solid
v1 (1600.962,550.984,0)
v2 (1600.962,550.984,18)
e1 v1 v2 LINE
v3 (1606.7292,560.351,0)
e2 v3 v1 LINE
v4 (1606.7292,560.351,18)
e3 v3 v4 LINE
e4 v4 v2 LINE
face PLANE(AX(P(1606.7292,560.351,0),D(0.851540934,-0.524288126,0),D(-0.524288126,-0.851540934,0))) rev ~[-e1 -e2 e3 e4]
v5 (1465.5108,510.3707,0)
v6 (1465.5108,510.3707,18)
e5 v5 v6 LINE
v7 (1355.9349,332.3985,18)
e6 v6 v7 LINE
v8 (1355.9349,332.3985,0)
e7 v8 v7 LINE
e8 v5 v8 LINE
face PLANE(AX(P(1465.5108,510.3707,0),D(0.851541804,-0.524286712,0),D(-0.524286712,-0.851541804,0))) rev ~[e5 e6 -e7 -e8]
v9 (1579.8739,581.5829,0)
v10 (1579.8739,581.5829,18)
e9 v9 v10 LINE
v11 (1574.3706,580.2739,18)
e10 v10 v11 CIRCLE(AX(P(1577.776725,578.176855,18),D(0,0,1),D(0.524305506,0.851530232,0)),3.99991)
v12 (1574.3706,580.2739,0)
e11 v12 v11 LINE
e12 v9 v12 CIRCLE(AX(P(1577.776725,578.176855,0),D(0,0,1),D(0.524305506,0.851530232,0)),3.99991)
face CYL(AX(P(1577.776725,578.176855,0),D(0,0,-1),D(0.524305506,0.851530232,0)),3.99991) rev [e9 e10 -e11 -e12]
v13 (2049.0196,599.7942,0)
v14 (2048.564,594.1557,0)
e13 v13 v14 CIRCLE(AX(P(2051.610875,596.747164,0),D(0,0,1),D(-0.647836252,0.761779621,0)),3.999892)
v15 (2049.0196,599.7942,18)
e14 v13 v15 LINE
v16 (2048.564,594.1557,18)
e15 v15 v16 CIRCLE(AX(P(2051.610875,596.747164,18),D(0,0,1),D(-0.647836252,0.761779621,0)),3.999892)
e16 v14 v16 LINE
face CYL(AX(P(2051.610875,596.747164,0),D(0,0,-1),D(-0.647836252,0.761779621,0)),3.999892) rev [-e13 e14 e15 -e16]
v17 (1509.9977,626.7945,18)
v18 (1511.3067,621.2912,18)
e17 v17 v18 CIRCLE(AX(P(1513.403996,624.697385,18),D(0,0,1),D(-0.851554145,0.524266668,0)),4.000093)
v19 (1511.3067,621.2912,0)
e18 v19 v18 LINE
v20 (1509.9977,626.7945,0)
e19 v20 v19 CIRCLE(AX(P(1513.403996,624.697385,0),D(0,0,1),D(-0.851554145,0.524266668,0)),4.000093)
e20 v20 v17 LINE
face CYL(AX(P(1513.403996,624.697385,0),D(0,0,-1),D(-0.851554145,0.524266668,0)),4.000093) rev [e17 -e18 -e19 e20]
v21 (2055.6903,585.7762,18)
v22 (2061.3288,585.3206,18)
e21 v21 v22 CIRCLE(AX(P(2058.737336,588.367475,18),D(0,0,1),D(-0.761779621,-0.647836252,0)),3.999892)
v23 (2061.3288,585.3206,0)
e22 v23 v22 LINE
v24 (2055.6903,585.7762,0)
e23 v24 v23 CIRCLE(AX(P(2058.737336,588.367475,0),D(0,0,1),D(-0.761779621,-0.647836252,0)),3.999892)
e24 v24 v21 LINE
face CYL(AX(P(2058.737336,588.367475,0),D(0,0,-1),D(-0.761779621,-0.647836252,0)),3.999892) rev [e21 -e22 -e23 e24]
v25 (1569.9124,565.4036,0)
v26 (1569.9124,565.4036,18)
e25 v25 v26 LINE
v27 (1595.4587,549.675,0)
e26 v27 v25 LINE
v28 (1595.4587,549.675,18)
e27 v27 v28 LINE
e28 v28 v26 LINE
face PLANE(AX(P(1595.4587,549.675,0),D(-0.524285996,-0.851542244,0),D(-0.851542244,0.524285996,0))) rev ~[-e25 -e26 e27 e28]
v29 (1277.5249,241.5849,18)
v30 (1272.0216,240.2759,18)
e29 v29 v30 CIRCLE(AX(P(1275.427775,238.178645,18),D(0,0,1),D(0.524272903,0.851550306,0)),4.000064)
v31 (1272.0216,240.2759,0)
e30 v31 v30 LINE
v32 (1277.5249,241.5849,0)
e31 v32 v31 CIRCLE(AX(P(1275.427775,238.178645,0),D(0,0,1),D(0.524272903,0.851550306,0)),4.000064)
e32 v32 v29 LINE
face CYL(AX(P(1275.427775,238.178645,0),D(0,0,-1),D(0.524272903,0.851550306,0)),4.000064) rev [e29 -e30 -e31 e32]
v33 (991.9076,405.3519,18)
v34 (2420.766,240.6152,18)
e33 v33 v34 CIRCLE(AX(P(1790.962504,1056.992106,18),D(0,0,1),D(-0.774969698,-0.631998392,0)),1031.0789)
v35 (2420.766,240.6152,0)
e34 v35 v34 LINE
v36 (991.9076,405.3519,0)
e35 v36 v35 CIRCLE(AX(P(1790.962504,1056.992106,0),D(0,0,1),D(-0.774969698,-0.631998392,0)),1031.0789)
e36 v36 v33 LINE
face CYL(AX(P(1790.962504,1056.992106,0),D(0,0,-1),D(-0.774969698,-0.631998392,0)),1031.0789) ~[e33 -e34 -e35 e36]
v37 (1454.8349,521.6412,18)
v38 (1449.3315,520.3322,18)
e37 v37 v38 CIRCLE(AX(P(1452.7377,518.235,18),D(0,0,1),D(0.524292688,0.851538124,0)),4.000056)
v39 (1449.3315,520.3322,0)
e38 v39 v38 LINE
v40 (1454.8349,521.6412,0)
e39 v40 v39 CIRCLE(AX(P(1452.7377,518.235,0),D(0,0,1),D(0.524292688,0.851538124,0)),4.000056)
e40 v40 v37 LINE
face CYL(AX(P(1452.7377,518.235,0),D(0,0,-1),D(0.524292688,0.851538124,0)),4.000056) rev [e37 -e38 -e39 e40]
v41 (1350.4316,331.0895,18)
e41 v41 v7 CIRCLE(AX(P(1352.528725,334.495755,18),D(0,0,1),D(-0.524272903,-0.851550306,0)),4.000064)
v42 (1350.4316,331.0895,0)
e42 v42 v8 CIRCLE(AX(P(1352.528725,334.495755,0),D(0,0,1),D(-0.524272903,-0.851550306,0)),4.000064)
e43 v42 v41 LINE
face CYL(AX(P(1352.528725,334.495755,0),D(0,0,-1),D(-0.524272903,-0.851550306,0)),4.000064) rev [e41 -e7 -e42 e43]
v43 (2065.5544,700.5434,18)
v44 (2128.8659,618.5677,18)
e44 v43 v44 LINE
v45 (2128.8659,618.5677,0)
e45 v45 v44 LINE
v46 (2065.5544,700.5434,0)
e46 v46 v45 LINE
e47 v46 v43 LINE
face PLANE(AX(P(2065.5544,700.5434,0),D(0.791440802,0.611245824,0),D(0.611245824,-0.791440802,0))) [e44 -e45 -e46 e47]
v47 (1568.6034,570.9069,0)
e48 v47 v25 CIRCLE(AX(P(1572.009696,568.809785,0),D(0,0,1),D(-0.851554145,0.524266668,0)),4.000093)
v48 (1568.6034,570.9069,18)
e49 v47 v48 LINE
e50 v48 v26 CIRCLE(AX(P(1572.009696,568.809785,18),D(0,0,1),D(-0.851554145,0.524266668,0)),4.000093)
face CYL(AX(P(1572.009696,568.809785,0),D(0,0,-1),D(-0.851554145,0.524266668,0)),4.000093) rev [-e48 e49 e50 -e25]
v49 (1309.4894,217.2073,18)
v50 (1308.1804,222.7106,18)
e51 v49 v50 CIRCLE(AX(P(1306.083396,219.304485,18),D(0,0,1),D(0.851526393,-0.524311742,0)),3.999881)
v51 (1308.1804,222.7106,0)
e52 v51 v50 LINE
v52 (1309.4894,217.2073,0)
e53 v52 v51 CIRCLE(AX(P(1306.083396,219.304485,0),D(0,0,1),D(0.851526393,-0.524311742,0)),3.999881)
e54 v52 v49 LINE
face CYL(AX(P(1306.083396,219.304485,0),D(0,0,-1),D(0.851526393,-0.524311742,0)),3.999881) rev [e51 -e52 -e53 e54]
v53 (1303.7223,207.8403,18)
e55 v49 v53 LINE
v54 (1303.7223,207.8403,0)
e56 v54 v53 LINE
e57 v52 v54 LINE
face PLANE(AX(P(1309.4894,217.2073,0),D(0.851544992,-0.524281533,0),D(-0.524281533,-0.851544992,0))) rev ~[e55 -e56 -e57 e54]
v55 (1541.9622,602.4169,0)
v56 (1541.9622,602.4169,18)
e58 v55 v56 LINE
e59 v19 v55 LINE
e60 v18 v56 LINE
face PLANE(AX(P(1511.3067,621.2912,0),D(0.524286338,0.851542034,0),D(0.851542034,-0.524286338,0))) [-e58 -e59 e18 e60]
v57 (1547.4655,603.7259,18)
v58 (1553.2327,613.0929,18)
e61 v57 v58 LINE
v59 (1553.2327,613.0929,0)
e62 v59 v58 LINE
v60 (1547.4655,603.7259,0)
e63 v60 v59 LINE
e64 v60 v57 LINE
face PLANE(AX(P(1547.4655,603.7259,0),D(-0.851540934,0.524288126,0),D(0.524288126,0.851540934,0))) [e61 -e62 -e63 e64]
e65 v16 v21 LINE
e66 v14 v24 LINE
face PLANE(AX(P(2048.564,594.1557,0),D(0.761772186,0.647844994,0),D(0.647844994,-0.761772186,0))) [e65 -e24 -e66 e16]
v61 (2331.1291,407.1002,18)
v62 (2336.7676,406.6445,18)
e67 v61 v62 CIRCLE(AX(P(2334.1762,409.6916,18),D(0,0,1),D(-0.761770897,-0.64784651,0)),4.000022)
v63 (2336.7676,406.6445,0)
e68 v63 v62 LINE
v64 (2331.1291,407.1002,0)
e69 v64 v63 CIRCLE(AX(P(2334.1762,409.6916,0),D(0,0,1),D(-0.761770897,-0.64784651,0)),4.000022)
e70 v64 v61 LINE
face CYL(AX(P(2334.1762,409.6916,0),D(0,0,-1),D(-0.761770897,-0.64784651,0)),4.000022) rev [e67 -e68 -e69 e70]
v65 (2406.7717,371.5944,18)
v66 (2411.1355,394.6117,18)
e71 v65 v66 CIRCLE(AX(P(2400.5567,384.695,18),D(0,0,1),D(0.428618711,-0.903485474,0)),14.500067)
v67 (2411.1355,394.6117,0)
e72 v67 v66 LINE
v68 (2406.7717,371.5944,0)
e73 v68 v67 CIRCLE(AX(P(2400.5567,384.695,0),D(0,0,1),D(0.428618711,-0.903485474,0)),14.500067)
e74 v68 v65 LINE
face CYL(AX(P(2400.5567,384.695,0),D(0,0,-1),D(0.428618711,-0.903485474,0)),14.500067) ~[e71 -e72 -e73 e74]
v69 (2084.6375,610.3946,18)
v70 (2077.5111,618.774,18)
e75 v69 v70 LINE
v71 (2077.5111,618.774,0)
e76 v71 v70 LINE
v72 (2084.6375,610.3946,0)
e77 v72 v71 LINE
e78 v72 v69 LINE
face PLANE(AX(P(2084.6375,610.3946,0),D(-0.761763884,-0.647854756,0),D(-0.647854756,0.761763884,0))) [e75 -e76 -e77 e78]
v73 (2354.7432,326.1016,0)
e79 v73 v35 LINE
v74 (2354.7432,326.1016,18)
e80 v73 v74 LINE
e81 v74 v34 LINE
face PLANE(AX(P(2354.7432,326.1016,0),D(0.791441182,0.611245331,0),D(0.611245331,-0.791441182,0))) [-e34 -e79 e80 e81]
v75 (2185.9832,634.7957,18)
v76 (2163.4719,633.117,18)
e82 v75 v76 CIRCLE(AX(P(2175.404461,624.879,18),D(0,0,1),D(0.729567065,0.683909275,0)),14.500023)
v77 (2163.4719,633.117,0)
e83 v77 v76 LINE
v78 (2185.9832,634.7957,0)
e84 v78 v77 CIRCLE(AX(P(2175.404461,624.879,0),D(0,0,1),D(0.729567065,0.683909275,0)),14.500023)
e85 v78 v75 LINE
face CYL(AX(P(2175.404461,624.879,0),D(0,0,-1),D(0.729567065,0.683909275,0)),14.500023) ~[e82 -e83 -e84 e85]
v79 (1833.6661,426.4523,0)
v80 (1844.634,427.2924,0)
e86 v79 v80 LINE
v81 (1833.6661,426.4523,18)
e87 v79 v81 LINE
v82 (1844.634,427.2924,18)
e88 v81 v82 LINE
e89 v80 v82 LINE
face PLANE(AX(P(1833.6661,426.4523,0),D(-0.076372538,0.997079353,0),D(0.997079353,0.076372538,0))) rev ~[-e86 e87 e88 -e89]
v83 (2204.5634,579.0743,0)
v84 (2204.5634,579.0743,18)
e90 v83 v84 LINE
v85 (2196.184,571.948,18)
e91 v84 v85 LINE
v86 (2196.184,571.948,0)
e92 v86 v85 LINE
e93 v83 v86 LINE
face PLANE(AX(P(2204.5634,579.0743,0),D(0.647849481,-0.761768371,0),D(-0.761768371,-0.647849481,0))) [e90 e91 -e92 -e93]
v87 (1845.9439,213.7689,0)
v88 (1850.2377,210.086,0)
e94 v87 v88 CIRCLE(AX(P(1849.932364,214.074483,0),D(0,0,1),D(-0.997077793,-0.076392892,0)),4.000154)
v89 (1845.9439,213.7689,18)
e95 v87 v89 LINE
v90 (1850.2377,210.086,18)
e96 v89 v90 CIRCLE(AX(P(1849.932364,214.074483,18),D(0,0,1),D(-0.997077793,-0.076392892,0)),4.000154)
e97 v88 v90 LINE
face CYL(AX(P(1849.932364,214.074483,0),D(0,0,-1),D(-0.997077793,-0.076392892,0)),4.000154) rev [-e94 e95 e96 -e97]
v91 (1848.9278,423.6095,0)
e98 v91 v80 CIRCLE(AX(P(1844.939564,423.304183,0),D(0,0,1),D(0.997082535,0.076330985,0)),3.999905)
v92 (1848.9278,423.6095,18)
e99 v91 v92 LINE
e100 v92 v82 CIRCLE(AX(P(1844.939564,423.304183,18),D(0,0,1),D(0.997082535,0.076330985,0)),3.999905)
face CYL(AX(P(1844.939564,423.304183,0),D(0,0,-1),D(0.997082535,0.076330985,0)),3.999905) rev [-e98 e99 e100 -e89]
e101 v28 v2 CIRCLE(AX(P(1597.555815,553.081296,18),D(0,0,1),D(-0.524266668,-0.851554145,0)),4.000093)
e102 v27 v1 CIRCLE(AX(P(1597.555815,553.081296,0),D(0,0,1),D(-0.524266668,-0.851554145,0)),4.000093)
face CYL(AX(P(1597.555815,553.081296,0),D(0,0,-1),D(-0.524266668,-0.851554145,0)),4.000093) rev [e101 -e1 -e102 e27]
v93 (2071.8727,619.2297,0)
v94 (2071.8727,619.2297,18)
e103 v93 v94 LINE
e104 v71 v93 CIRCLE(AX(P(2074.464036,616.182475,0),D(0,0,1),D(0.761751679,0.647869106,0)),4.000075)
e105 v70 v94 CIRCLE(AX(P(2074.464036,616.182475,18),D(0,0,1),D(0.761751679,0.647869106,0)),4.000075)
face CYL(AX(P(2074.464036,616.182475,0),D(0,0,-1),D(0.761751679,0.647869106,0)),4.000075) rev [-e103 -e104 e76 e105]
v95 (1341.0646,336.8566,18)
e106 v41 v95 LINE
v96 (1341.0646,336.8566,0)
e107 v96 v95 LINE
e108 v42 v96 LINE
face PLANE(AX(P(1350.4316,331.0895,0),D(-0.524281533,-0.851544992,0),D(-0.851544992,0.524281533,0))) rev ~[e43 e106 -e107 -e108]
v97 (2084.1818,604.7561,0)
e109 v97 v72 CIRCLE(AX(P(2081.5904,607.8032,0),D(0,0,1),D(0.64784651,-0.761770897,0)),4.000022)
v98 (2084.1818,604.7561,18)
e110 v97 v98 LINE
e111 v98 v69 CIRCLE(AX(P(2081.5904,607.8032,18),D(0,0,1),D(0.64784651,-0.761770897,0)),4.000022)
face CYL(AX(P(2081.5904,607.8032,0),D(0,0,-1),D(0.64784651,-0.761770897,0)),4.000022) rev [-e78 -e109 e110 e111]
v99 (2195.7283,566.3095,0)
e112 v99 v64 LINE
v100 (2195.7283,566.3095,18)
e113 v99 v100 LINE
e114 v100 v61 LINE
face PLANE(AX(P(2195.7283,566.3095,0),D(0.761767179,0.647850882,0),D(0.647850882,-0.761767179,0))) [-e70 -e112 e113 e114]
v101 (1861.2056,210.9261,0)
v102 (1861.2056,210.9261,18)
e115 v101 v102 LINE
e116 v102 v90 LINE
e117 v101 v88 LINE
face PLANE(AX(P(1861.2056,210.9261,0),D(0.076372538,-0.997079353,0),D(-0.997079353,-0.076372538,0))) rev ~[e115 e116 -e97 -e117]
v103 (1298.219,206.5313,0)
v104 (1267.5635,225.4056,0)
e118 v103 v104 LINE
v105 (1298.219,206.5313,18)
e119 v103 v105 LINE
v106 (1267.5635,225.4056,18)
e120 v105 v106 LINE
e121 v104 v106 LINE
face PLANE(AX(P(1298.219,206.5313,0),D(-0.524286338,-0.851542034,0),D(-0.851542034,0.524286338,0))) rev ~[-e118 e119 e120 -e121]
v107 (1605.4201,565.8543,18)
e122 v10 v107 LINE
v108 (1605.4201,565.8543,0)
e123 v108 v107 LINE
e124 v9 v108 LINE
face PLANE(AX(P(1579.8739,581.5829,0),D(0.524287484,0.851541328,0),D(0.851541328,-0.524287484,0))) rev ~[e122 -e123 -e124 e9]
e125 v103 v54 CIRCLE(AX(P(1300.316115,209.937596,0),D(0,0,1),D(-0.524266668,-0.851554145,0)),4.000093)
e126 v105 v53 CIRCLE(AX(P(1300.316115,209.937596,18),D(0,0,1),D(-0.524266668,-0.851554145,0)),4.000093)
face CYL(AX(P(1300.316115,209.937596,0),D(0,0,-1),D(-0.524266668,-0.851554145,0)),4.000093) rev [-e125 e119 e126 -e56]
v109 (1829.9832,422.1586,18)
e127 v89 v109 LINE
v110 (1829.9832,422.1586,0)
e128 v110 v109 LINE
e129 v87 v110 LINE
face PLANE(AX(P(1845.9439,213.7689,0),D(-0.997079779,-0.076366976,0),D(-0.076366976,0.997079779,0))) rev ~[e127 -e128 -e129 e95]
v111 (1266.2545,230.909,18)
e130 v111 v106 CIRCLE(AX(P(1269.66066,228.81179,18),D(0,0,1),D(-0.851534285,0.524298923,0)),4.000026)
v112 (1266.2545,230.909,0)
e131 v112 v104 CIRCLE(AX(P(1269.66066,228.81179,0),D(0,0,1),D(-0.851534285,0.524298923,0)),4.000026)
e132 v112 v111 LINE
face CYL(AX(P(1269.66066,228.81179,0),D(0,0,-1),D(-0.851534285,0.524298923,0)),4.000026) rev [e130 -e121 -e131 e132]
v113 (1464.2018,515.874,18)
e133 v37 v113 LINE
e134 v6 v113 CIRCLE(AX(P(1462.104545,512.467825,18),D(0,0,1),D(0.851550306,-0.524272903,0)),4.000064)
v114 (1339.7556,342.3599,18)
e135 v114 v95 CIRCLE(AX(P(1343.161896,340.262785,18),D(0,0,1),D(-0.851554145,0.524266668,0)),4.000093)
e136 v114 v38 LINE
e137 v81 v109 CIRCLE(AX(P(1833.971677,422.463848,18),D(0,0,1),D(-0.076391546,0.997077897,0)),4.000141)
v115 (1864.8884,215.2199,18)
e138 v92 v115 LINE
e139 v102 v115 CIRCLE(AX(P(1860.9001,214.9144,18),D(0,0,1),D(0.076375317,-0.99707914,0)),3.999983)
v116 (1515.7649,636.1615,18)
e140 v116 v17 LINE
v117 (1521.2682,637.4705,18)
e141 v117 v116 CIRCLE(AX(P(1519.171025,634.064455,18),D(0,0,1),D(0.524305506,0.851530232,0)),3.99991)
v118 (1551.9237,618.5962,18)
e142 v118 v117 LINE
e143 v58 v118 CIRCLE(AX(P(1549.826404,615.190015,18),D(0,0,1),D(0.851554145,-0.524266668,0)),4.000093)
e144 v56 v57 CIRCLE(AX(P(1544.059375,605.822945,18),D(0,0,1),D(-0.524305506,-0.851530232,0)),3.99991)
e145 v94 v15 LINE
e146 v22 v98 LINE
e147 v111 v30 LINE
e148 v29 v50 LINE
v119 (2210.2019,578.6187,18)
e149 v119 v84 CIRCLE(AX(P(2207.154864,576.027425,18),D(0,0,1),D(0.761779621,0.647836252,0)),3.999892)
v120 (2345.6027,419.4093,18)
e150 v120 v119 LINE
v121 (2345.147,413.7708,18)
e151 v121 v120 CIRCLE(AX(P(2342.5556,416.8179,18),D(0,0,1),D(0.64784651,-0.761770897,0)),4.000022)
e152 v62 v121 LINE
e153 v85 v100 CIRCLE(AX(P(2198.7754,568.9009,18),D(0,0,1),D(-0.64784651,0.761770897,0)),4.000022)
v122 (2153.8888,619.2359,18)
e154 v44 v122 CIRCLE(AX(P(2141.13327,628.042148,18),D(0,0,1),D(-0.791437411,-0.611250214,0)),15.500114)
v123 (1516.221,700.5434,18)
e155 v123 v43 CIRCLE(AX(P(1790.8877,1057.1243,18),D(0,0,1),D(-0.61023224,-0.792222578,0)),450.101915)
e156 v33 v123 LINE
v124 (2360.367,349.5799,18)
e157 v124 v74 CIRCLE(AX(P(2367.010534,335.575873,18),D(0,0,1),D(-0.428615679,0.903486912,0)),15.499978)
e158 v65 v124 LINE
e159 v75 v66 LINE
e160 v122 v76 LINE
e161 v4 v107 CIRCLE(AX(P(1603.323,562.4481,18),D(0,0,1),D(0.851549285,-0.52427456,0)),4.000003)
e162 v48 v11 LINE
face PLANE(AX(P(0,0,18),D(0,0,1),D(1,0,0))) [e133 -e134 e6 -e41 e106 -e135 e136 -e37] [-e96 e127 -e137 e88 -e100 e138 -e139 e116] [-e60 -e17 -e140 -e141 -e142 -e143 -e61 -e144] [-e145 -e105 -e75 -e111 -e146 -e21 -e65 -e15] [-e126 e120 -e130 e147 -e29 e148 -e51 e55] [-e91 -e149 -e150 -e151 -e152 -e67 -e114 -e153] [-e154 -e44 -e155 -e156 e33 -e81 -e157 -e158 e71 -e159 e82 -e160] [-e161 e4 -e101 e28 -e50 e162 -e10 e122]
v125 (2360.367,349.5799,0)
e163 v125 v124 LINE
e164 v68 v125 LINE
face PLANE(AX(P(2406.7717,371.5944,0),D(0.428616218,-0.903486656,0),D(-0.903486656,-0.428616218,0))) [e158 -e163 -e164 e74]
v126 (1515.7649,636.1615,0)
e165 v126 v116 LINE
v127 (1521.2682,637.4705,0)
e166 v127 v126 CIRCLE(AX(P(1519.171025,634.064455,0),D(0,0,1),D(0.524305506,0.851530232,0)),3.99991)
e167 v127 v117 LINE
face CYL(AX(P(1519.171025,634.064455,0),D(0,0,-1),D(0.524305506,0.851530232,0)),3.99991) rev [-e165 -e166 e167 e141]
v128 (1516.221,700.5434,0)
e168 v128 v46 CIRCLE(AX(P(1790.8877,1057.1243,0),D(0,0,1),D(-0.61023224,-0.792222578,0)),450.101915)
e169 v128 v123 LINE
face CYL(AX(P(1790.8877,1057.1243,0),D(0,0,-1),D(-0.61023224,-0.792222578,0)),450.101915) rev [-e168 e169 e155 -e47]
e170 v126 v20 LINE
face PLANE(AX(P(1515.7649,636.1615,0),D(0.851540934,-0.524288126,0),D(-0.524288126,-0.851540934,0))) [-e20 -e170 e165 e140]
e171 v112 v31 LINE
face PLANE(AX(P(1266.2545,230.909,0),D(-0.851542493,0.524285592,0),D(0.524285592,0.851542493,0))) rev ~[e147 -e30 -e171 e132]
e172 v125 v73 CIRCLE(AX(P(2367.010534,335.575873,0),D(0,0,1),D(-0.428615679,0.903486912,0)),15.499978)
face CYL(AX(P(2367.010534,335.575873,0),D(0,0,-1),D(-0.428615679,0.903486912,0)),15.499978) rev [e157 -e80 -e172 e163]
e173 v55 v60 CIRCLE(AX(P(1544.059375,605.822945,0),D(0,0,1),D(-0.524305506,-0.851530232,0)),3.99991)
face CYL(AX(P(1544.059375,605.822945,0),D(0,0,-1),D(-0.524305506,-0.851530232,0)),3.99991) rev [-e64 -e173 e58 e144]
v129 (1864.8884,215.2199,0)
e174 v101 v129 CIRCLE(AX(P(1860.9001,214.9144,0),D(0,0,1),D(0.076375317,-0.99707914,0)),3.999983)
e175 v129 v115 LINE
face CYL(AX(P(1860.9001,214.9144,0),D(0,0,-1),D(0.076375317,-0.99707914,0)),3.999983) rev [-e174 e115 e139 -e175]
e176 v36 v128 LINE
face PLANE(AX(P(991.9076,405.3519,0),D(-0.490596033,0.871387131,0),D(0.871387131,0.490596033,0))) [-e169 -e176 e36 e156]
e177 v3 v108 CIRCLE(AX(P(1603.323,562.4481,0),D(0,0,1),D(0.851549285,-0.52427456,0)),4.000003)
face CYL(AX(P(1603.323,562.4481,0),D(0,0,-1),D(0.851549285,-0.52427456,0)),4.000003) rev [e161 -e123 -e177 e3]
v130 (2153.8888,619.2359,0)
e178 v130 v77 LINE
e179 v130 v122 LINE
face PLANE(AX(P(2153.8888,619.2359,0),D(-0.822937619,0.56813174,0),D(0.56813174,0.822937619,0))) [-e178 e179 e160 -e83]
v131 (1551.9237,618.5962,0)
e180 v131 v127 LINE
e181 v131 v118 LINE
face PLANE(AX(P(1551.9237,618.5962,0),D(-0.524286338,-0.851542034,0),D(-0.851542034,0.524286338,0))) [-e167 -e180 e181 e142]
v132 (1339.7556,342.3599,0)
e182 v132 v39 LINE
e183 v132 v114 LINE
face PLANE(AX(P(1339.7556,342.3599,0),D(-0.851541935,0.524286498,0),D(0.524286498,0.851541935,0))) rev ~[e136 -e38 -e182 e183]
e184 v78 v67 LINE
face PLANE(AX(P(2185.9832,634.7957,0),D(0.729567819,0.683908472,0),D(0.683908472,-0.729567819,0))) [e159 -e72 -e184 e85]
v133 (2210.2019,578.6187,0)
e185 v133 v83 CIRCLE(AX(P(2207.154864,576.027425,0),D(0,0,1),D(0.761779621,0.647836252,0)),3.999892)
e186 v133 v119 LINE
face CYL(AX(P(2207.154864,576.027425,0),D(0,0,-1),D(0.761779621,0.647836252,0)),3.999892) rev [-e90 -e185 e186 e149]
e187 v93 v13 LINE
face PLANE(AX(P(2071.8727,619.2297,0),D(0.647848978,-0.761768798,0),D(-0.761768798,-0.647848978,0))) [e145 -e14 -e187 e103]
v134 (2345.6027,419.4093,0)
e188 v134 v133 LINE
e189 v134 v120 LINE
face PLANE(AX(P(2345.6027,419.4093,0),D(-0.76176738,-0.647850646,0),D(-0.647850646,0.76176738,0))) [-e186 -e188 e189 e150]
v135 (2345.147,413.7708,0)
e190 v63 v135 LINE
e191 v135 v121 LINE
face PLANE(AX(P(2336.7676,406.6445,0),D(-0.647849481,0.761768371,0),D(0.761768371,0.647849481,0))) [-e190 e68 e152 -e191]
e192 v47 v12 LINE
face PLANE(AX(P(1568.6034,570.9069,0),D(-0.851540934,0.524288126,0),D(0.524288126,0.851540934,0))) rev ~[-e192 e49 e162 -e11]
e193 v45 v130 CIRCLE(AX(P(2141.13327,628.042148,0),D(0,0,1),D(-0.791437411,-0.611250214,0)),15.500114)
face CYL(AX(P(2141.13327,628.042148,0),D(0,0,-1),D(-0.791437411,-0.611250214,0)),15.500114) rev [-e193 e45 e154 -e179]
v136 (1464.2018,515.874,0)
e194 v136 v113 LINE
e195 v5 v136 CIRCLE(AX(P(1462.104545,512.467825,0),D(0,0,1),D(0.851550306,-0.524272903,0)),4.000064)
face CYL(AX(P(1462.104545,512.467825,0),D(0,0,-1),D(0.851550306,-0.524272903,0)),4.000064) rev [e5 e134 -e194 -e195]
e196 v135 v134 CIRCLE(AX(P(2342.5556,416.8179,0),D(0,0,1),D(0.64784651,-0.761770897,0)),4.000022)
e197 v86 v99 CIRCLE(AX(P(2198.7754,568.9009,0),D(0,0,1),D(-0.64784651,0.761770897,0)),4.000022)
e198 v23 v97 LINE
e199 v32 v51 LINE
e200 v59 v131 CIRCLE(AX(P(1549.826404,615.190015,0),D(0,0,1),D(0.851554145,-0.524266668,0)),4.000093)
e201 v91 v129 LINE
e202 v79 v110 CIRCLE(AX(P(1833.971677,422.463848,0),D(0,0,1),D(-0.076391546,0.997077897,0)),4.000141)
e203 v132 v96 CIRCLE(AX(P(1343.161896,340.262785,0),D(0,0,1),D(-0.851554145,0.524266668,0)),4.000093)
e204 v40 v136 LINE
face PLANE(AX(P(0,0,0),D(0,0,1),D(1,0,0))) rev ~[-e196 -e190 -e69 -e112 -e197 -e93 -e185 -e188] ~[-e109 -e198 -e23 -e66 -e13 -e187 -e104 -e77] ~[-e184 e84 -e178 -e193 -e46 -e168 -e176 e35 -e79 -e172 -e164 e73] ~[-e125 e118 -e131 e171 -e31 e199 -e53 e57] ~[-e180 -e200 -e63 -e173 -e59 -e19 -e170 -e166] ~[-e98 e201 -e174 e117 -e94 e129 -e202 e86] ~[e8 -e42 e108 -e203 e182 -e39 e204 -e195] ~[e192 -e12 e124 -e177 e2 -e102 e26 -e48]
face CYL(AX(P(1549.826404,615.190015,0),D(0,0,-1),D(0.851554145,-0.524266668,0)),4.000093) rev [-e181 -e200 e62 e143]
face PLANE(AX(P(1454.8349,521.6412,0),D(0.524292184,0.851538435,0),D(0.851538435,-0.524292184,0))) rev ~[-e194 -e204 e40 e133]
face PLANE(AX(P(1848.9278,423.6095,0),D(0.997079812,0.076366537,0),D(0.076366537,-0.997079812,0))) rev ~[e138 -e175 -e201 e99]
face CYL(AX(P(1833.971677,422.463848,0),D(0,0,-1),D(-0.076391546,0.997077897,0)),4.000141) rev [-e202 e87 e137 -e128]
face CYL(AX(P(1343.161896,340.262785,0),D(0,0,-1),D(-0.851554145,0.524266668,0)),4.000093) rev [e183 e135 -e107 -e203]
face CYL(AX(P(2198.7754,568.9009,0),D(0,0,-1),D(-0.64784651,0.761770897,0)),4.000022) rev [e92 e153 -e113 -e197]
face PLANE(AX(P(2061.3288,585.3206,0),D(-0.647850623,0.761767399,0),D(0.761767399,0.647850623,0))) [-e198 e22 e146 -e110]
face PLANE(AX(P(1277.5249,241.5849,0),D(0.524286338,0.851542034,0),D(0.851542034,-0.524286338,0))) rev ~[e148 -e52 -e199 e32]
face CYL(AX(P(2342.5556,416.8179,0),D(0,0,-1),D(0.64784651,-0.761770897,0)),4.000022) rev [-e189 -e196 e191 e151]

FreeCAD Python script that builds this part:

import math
import FreeCAD as App
import Part
import Sketcher

V = App.Vector
Q = App.Units.Quantity

doc = App.newDocument("Part")
body = doc.addObject("PartDesign::Body", "Body")

sketch1 = doc.addObject("Sketcher::SketchObject", "Sketch")
body.addObject(sketch1)
sketch1.AttachmentSupport = (doc.XY_Plane, [""])
sketch1.MapMode = "FlatFace"
sketch1.addGeometry([
    Part.LineSegment(V(2163, 633, 0), V(2154, 619, 0)),
    Part.ArcOfCircle(Part.Circle(V(2141, 628, 0), V(0, 0, 1), 15), math.radians(-142), math.radians(-35)),
    Part.LineSegment(V(2129, 619, 0), V(2066, 701, 0)),
    Part.ArcOfCircle(Part.Circle(V(1791, 1057, 0), V(0, 0, 1), 450), math.radians(-128), math.radians(-52)),
    Part.LineSegment(V(1516, 701, 0), V(992, 405, 0)),
    Part.ArcOfCircle(Part.Circle(V(1791, 1057, 0), V(0, 0, 1), 1031), math.radians(-141), math.radians(-52)),
    Part.LineSegment(V(2421, 241, 0), V(2355, 326, 0)),
    Part.ArcOfCircle(Part.Circle(V(2367, 336, 0), V(0, 0, 1), 15), math.radians(115), math.radians(218)),
    Part.LineSegment(V(2360, 350, 0), V(2407, 372, 0)),
    Part.ArcOfCircle(Part.Circle(V(2401, 385, 0), V(0, 0, 1), 15), math.radians(-65), math.radians(43)),
    Part.LineSegment(V(2411, 395, 0), V(2186, 635, 0)),
    Part.ArcOfCircle(Part.Circle(V(2175, 625, 0), V(0, 0, 1), 14), math.radians(43), math.radians(145)),
], False)
sketch1.addConstraint([
    Sketcher.Constraint("Tangent", 0, 2, 1, 2),
    Sketcher.Constraint("Tangent", 1, 1, 2, 1),
    Sketcher.Constraint("Coincident", 2, 2, 3, 2),
    Sketcher.Constraint("Coincident", 3, 1, 4, 1),
    Sketcher.Constraint("Coincident", 4, 2, 5, 1),
    Sketcher.Constraint("Coincident", 5, 2, 6, 1),
    Sketcher.Constraint("Tangent", 6, 2, 7, 2),
    Sketcher.Constraint("Tangent", 7, 1, 8, 1),
    Sketcher.Constraint("Tangent", 8, 2, 9, 1),
    Sketcher.Constraint("Tangent", 9, 2, 10, 1),
    Sketcher.Constraint("Tangent", 10, 2, 11, 1),
    Sketcher.Constraint("Tangent", 11, 2, 0, 1),
    Sketcher.Constraint("Equal", 1, 7),
    Sketcher.Constraint("Equal", 9, 11),
    Sketcher.Constraint("Parallel", 2, 6),
    Sketcher.Constraint("Horizontal", 2, 2, 3, 1),
    Sketcher.Constraint("Radius", 1, Q("15.5 mm")),
    Sketcher.Constraint("Radius", 9, Q("14.5 mm")),
    Sketcher.Constraint("Radius", 3, Q("450.102 mm")),
    Sketcher.Constraint("Radius", 5, Q("1031.079 mm")),
    Sketcher.Constraint("Angle", 0, Q("-124.62 deg")),
    Sketcher.Constraint("Angle", 2, Q("127.6796 deg")),
    Sketcher.Constraint("Angle", 4, Q("-150.6202 deg")),
    Sketcher.Constraint("Angle", 8, Q("25.3798 deg")),
    Sketcher.Constraint("Angle", 10, Q("133.1498 deg")),
    Sketcher.Constraint("DistanceY", -1, 1, 7, 1, Q("349.58 mm")),
    Sketcher.Constraint("DistanceY", 1, 3, 5, 3, Q("428.95 mm")),
    Sketcher.Constraint("DistanceY", 7, 3, 0, 2, Q("283.66 mm")),
    Sketcher.Constraint("DistanceX", 2, 2, 11, 3, Q("109.85 mm")),
    Sketcher.Constraint("DistanceX", 4, 2, 3, 3, Q("798.98 mm")),
    Sketcher.Constraint("DistanceY", 6, 2, 9, 2, Q("68.51 mm")),
    Sketcher.Constraint("DistanceX", 1, 3, 10, 2, Q("44.85 mm")),
    Sketcher.Constraint("DistanceX", -1, 1, 1, 1, Q("2128.866 mm")),
    Sketcher.Constraint("DistanceX", -1, 1, 3, 1, Q("1516.221 mm")),
])
pad1 = doc.addObject("PartDesign::Pad", "Pad")
body.addObject(pad1)
pad1.Profile = sketch1
pad1.Length = 18

sketch2 = doc.addObject("Sketcher::SketchObject", "Sketch001")
body.addObject(sketch2)
sketch2.AttachmentSupport = (doc.XY_Plane, [""])
sketch2.MapMode = "FlatFace"
sketch2.addGeometry([
    Part.LineSegment(V(1844.6, 427.3, 0), V(1833.7, 426.5, 0)),
    Part.ArcOfCircle(Part.Circle(V(1834, 422.5, 0), V(0, 0, 1), 4), math.radians(94), math.radians(184)),
    Part.LineSegment(V(1830, 422.2, 0), V(1845.9, 213.8, 0)),
    Part.ArcOfCircle(Part.Circle(V(1849.9, 214.1, 0), V(0, 0, 1), 4), math.radians(-176), math.radians(-86)),
    Part.LineSegment(V(1850.2, 210.1, 0), V(1861.2, 210.9, 0)),
    Part.ArcOfCircle(Part.Circle(V(1860.9, 214.9, 0), V(0, 0, 1), 4), math.radians(-86), math.radians(4)),
    Part.LineSegment(V(1864.9, 215.2, 0), V(1848.9, 423.6, 0)),
    Part.ArcOfCircle(Part.Circle(V(1844.9, 423.3, 0), V(0, 0, 1), 4), math.radians(4), math.radians(94)),
    Part.LineSegment(V(2084.6, 610.4, 0), V(2077.5, 618.8, 0)),
    Part.ArcOfCircle(Part.Circle(V(2074.5, 616.2, 0), V(0, 0, 1), 4), math.radians(40), math.radians(130)),
    Part.LineSegment(V(2071.9, 619.2, 0), V(2049, 599.8, 0)),
    Part.ArcOfCircle(Part.Circle(V(2051.6, 596.7, 0), V(0, 0, 1), 4), math.radians(130), math.radians(220)),
    Part.LineSegment(V(2048.6, 594.2, 0), V(2055.7, 585.8, 0)),
    Part.ArcOfCircle(Part.Circle(V(2058.7, 588.4, 0), V(0, 0, 1), 4), math.radians(-140), math.radians(-50)),
    Part.LineSegment(V(2061.3, 585.3, 0), V(2084.2, 604.8, 0)),
    Part.ArcOfCircle(Part.Circle(V(2081.6, 607.8, 0), V(0, 0, 1), 4), math.radians(-50), math.radians(40)),
    Part.LineSegment(V(1547.5, 603.7, 0), V(1553.2, 613.1, 0)),
    Part.ArcOfCircle(Part.Circle(V(1549.8, 615.2, 0), V(0, 0, 1), 4), math.radians(-32), math.radians(58)),
    Part.LineSegment(V(1551.9, 618.6, 0), V(1521.3, 637.5, 0)),
    Part.ArcOfCircle(Part.Circle(V(1519.2, 634.1, 0), V(0, 0, 1), 4), math.radians(58), math.radians(148)),
    Part.LineSegment(V(1515.8, 636.2, 0), V(1510, 626.8, 0)),
    Part.ArcOfCircle(Part.Circle(V(1513.4, 624.7, 0), V(0, 0, 1), 4), math.radians(148), math.radians(238)),
    Part.LineSegment(V(1511.3, 621.3, 0), V(1542, 602.4, 0)),
    Part.ArcOfCircle(Part.Circle(V(1544.1, 605.8, 0), V(0, 0, 1), 4), math.radians(-122), math.radians(-32)),
    Part.LineSegment(V(1272, 240.3, 0), V(1266.3, 230.9, 0)),
    Part.ArcOfCircle(Part.Circle(V(1269.7, 228.8, 0), V(0, 0, 1), 4), math.radians(148), math.radians(238)),
    Part.LineSegment(V(1267.6, 225.4, 0), V(1298.2, 206.5, 0)),
    Part.ArcOfCircle(Part.Circle(V(1300.3, 209.9, 0), V(0, 0, 1), 4), math.radians(-122), math.radians(-32)),
    Part.LineSegment(V(1303.7, 207.8, 0), V(1309.5, 217.2, 0)),
    Part.ArcOfCircle(Part.Circle(V(1306.1, 219.3, 0), V(0, 0, 1), 4), math.radians(-32), math.radians(58)),
    Part.LineSegment(V(1308.2, 222.7, 0), V(1277.5, 241.6, 0)),
    Part.ArcOfCircle(Part.Circle(V(1275.4, 238.2, 0), V(0, 0, 1), 4), math.radians(58), math.radians(148)),
    Part.LineSegment(V(2204.6, 579.1, 0), V(2196.2, 571.9, 0)),
    Part.ArcOfCircle(Part.Circle(V(2198.8, 568.9, 0), V(0, 0, 1), 4), math.radians(130), math.radians(220)),
    Part.LineSegment(V(2195.7, 566.3, 0), V(2331.1, 407.1, 0)),
    Part.ArcOfCircle(Part.Circle(V(2334.2, 409.7, 0), V(0, 0, 1), 4), math.radians(-140), math.radians(-50)),
    Part.LineSegment(V(2336.8, 406.6, 0), V(2345.1, 413.8, 0)),
    Part.ArcOfCircle(Part.Circle(V(2342.6, 416.8, 0), V(0, 0, 1), 4), math.radians(-50), math.radians(40)),
    Part.LineSegment(V(2345.6, 419.4, 0), V(2210.2, 578.6, 0)),
    Part.ArcOfCircle(Part.Circle(V(2207.2, 576, 0), V(0, 0, 1), 4), math.radians(40), math.radians(130)),
    Part.LineSegment(V(1449.3, 520.3, 0), V(1339.8, 342.4, 0)),
    Part.ArcOfCircle(Part.Circle(V(1343.2, 340.3, 0), V(0, 0, 1), 4), math.radians(148), math.radians(238)),
    Part.LineSegment(V(1341.1, 336.9, 0), V(1350.4, 331.1, 0)),
    Part.ArcOfCircle(Part.Circle(V(1352.5, 334.5, 0), V(0, 0, 1), 4), math.radians(-122), math.radians(-32)),
    Part.LineSegment(V(1355.9, 332.4, 0), V(1465.5, 510.4, 0)),
    Part.ArcOfCircle(Part.Circle(V(1462.1, 512.5, 0), V(0, 0, 1), 4), math.radians(-32), math.radians(58)),
    Part.LineSegment(V(1464.2, 515.9, 0), V(1454.8, 521.6, 0)),
    Part.ArcOfCircle(Part.Circle(V(1452.7, 518.2, 0), V(0, 0, 1), 4), math.radians(58), math.radians(148)),
    Part.LineSegment(V(1601, 551, 0), V(1606.7, 560.4, 0)),
    Part.ArcOfCircle(Part.Circle(V(1603.3, 562.4, 0), V(0, 0, 1), 4), math.radians(-32), math.radians(58)),
    Part.LineSegment(V(1605.4, 565.9, 0), V(1579.9, 581.6, 0)),
    Part.ArcOfCircle(Part.Circle(V(1577.8, 578.2, 0), V(0, 0, 1), 4), math.radians(58), math.radians(148)),
    Part.LineSegment(V(1574.4, 580.3, 0), V(1568.6, 570.9, 0)),
    Part.ArcOfCircle(Part.Circle(V(1572, 568.8, 0), V(0, 0, 1), 4), math.radians(148), math.radians(238)),
    Part.LineSegment(V(1569.9, 565.4, 0), V(1595.5, 549.7, 0)),
    Part.ArcOfCircle(Part.Circle(V(1597.6, 553.1, 0), V(0, 0, 1), 4), math.radians(-122), math.radians(-32)),
], False)
sketch2.addConstraint([
    Sketcher.Constraint("Tangent", 0, 2, 1, 1),
    Sketcher.Constraint("Tangent", 1, 2, 2, 1),
    Sketcher.Constraint("Tangent", 2, 2, 3, 1),
    Sketcher.Constraint("Tangent", 3, 2, 4, 1),
    Sketcher.Constraint("Tangent", 4, 2, 5, 1),
    Sketcher.Constraint("Tangent", 5, 2, 6, 1),
    Sketcher.Constraint("Tangent", 6, 2, 7, 1),
    Sketcher.Constraint("Tangent", 7, 2, 0, 1),
    Sketcher.Constraint("Tangent", 8, 2, 9, 1),
    Sketcher.Constraint("Tangent", 9, 2, 10, 1),
    Sketcher.Constraint("Tangent", 10, 2, 11, 1),
    Sketcher.Constraint("Tangent", 11, 2, 12, 1),
    Sketcher.Constraint("Tangent", 12, 2, 13, 1),
    Sketcher.Constraint("Tangent", 13, 2, 14, 1),
    Sketcher.Constraint("Tangent", 14, 2, 15, 1),
    Sketcher.Constraint("Tangent", 15, 2, 8, 1),
    Sketcher.Constraint("Tangent", 16, 2, 17, 1),
    Sketcher.Constraint("Tangent", 17, 2, 18, 1),
    Sketcher.Constraint("Tangent", 18, 2, 19, 1),
    Sketcher.Constraint("Tangent", 19, 2, 20, 1),
    Sketcher.Constraint("Tangent", 20, 2, 21, 1),
    Sketcher.Constraint("Tangent", 21, 2, 22, 1),
    Sketcher.Constraint("Tangent", 22, 2, 23, 1),
    Sketcher.Constraint("Tangent", 23, 2, 16, 1),
    Sketcher.Constraint("Tangent", 24, 2, 25, 1),
    Sketcher.Constraint("Tangent", 25, 2, 26, 1),
    Sketcher.Constraint("Tangent", 26, 2, 27, 1),
    Sketcher.Constraint("Tangent", 27, 2, 28, 1),
    Sketcher.Constraint("Tangent", 28, 2, 29, 1),
    Sketcher.Constraint("Tangent", 29, 2, 30, 1),
    Sketcher.Constraint("Tangent", 30, 2, 31, 1),
    Sketcher.Constraint("Tangent", 31, 2, 24, 1),
    Sketcher.Constraint("Tangent", 32, 2, 33, 1),
    Sketcher.Constraint("Tangent", 33, 2, 34, 1),
    Sketcher.Constraint("Tangent", 34, 2, 35, 1),
    Sketcher.Constraint("Tangent", 35, 2, 36, 1),
    Sketcher.Constraint("Tangent", 36, 2, 37, 1),
    Sketcher.Constraint("Tangent", 37, 2, 38, 1),
    Sketcher.Constraint("Tangent", 38, 2, 39, 1),
    Sketcher.Constraint("Tangent", 39, 2, 32, 1),
    Sketcher.Constraint("Tangent", 40, 2, 41, 1),
    Sketcher.Constraint("Tangent", 41, 2, 42, 1),
    Sketcher.Constraint("Tangent", 42, 2, 43, 1),
    Sketcher.Constraint("Tangent", 43, 2, 44, 1),
    Sketcher.Constraint("Tangent", 44, 2, 45, 1),
    Sketcher.Constraint("Tangent", 45, 2, 46, 1),
    Sketcher.Constraint("Tangent", 46, 2, 47, 1),
    Sketcher.Constraint("Tangent", 47, 2, 40, 1),
    Sketcher.Constraint("Tangent", 48, 2, 49, 1),
    Sketcher.Constraint("Tangent", 49, 2, 50, 1),
    Sketcher.Constraint("Tangent", 50, 2, 51, 1),
    Sketcher.Constraint("Tangent", 51, 2, 52, 1),
    Sketcher.Constraint("Tangent", 52, 2, 53, 1),
    Sketcher.Constraint("Tangent", 53, 2, 54, 1),
    Sketcher.Constraint("Tangent", 54, 2, 55, 1),
    Sketcher.Constraint("Tangent", 55, 2, 48, 1),
    Sketcher.Constraint("Equal", 1, 3),
    Sketcher.Constraint("Equal", 3, 5),
    Sketcher.Constraint("Equal", 5, 7),
    Sketcher.Constraint("Equal", 7, 9),
    Sketcher.Constraint("Equal", 9, 11),
    Sketcher.Constraint("Equal", 11, 13),
    Sketcher.Constraint("Equal", 13, 15),
    Sketcher.Constraint("Equal", 15, 17),
    Sketcher.Constraint("Equal", 17, 19),
    Sketcher.Constraint("Equal", 19, 21),
    Sketcher.Constraint("Equal", 21, 23),
    Sketcher.Constraint("Equal", 23, 25),
    Sketcher.Constraint("Equal", 25, 27),
    Sketcher.Constraint("Equal", 27, 29),
    Sketcher.Constraint("Equal", 29, 31),
    Sketcher.Constraint("Equal", 31, 33),
    Sketcher.Constraint("Equal", 33, 35),
    Sketcher.Constraint("Equal", 35, 37),
    Sketcher.Constraint("Equal", 37, 39),
    Sketcher.Constraint("Equal", 39, 41),
    Sketcher.Constraint("Equal", 41, 43),
    Sketcher.Constraint("Equal", 43, 45),
    Sketcher.Constraint("Equal", 45, 47),
    Sketcher.Constraint("Equal", 47, 49),
    Sketcher.Constraint("Equal", 49, 51),
    Sketcher.Constraint("Equal", 51, 53),
    Sketcher.Constraint("Equal", 53, 55),
    Sketcher.Constraint("Perpendicular", 0, 2),
    Sketcher.Constraint("Perpendicular", 2, 4),
    Sketcher.Constraint("Perpendicular", 4, 6),
    Sketcher.Constraint("Perpendicular", 8, 10),
    Sketcher.Constraint("Perpendicular", 10, 12),
    Sketcher.Constraint("Perpendicular", 12, 14),
    Sketcher.Constraint("Perpendicular", 16, 18),
    Sketcher.Constraint("Perpendicular", 18, 20),
    Sketcher.Constraint("Perpendicular", 20, 22),
    Sketcher.Constraint("Perpendicular", 22, 24),
    Sketcher.Constraint("Perpendicular", 24, 26),
    Sketcher.Constraint("Perpendicular", 26, 28),
    Sketcher.Constraint("Perpendicular", 28, 30),
    Sketcher.Constraint("Parallel", 14, 32),
    Sketcher.Constraint("Perpendicular", 32, 34),
    Sketcher.Constraint("Perpendicular", 34, 36),
    Sketcher.Constraint("Perpendicular", 36, 38),
    Sketcher.Constraint("Perpendicular", 30, 40),
    Sketcher.Constraint("Perpendicular", 40, 42),
    Sketcher.Constraint("Perpendicular", 42, 44),
    Sketcher.Constraint("Perpendicular", 44, 46),
    Sketcher.Constraint("Perpendicular", 46, 48),
    Sketcher.Constraint("Perpendicular", 48, 50),
    Sketcher.Constraint("Perpendicular", 50, 52),
    Sketcher.Constraint("Perpendicular", 52, 54),
    Sketcher.Constraint("Equal", 4, 8),
    Sketcher.Constraint("Equal", 12, 16),
    Sketcher.Constraint("Equal", 20, 24),
    Sketcher.Constraint("Equal", 22, 26),
    Sketcher.Constraint("Equal", 28, 32),
    Sketcher.Constraint("Equal", 6, 34),
    Sketcher.Constraint("Equal", 38, 40),
    Sketcher.Constraint("Equal", 36, 42),
    Sketcher.Constraint("Equal", 46, 48),
    Sketcher.Constraint("Equal", 14, 50),
    Sketcher.Constraint("Distance", 10, Q("30 mm")),
    Sketcher.Constraint("Distance", 18, Q("36 mm")),
    Sketcher.Constraint("Radius", 1, Q("4 mm")),
    Sketcher.Constraint("Distance", 0, Q("11 mm")),
    Sketcher.Constraint("Distance", 2, Q("209 mm")),
    Sketcher.Constraint("DistanceX", -1, 1, 5, 3, Q("1860.9 mm")),
    Sketcher.Constraint("Angle", 0, Q("-175.62 deg")),
    Sketcher.Constraint("Angle", 8, Q("130.38 deg")),
    Sketcher.Constraint("Angle", 16, Q("58.3797 deg")),
    Sketcher.Constraint("DistanceY", -1, 1, 17, 3, Q("615.19 mm")),
    Sketcher.Constraint("DistanceY", -1, 1, 5, 2, Q("215.22 mm")),
    Sketcher.Constraint("DistanceY", -1, 1, 40, 2, Q("342.36 mm")),
    Sketcher.Constraint("DistanceX", -1, 1, 49, 2, Q("1605.42 mm")),
    Sketcher.Constraint("DistanceX", -1, 1, 9, 3, Q("2074.464 mm")),
    Sketcher.Constraint("DistanceY", -1, 1, 11, 3, Q("596.747 mm")),
    Sketcher.Constraint("DistanceX", -1, 1, 19, 3, Q("1519.171 mm")),
    Sketcher.Constraint("DistanceX", -1, 1, 27, 3, Q("1300.316 mm")),
    Sketcher.Constraint("DistanceY", -1, 1, 33, 3, Q("568.901 mm")),
    Sketcher.Constraint("DistanceY", -1, 1, 49, 3, Q("562.448 mm")),
    Sketcher.Constraint("DistanceY", -1, 1, 24, 2, Q("230.909 mm")),
    Sketcher.Constraint("DistanceX", -1, 1, 32, 2, Q("2196.184 mm")),
    Sketcher.Constraint("DistanceX", -1, 1, 46, 2, Q("1454.835 mm")),
])
pocket1 = doc.addObject("PartDesign::Pocket", "Pocket")
body.addObject(pocket1)
pocket1.Profile = sketch2
pocket1.Length = 18
pocket1.Reversed = True

doc.recompute()
